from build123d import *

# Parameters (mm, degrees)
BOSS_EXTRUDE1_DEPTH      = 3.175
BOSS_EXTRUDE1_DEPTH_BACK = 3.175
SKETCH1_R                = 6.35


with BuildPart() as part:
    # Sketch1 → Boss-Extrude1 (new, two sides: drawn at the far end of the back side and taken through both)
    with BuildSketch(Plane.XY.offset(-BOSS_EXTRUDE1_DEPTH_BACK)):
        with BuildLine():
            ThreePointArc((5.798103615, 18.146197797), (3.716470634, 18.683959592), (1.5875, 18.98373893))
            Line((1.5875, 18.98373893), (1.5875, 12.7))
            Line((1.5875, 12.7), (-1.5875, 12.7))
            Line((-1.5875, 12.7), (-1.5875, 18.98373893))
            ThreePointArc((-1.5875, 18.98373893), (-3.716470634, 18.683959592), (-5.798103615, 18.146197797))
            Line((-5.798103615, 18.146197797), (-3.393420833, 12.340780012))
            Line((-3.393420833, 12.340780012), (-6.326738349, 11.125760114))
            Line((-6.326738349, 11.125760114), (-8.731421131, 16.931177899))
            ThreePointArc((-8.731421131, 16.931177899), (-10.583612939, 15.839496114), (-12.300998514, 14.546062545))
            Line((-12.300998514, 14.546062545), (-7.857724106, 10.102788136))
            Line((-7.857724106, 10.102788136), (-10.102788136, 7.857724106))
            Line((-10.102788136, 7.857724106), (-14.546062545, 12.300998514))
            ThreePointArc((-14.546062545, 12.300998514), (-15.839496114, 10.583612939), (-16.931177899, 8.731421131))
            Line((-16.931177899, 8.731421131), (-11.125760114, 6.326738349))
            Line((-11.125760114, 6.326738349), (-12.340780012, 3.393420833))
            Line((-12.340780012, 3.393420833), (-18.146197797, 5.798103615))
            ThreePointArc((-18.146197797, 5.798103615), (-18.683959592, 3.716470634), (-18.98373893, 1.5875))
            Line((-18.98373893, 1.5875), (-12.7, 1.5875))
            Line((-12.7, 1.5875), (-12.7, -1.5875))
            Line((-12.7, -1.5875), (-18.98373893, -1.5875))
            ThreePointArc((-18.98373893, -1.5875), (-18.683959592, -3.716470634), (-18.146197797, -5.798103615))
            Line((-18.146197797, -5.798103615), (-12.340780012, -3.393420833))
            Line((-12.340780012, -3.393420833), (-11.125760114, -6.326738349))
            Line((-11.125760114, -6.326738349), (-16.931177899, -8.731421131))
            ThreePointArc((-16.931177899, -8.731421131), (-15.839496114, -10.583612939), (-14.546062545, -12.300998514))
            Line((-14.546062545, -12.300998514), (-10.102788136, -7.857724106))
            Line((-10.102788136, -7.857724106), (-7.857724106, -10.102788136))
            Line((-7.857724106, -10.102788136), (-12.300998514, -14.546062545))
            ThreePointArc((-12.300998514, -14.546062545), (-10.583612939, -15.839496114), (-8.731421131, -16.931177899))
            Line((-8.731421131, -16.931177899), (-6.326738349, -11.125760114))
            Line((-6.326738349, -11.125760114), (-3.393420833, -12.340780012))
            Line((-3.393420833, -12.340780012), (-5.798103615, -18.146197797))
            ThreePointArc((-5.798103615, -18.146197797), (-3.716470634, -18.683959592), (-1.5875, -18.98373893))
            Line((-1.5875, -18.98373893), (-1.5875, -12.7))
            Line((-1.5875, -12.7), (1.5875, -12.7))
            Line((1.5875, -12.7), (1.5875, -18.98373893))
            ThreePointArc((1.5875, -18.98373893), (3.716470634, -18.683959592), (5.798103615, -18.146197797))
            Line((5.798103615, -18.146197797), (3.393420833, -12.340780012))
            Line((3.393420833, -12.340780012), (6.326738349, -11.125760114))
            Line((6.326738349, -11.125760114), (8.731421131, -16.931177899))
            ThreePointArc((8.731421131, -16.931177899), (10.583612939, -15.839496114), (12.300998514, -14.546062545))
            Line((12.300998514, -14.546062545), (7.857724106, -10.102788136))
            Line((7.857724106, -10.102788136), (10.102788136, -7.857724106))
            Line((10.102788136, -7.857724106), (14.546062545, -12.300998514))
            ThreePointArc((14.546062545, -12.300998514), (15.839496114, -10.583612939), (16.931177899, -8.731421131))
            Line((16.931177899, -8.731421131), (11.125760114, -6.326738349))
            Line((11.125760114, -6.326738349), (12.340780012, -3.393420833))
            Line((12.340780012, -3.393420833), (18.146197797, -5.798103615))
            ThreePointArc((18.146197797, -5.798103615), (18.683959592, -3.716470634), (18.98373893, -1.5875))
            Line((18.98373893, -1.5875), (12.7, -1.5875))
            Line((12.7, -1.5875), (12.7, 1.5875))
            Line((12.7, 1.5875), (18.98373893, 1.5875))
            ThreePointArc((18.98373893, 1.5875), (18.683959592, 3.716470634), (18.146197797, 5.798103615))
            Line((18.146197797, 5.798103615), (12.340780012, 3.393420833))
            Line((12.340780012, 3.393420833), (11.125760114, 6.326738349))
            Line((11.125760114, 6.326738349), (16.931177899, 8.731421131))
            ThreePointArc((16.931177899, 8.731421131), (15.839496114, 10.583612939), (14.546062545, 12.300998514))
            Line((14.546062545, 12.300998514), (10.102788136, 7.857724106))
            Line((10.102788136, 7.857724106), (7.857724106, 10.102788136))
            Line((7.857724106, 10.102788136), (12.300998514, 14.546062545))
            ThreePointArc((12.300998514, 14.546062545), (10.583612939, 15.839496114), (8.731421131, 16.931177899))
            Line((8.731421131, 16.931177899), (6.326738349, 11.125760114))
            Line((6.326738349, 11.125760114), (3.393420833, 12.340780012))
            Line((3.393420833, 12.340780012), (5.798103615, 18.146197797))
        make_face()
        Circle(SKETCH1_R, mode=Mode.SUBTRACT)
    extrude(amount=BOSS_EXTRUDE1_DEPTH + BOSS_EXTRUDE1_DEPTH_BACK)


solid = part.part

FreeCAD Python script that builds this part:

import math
import FreeCAD as App
import Part
import Sketcher
Q = App.Units.Quantity

doc = App.newDocument("Part")
body = doc.addObject("PartDesign::Body", "Body")

sketch1 = doc.addObject("Sketcher::SketchObject", "Sketch")
body.addObject(sketch1)
sketch1.AttachmentSupport = (doc.XY_Plane, [""])
sketch1.MapMode = "FlatFace"
sketch1.addGeometry(Part.ArcOfCircle(Part.Circle(App.Vector(0, 0, 0), App.Vector(0, 0, 1), 19.1), math.radians(72.28), math.radians(85.22)), False)
sketch1.addGeometry(Part.LineSegment(App.Vector(1.6, 19, 0), App.Vector(1.6, 12.7, 0)), False)
sketch1.addGeometry(Part.LineSegment(App.Vector(1.6, 12.7, 0), App.Vector(-1.6, 12.7, 0)), False)
sketch1.addGeometry(Part.LineSegment(App.Vector(-1.6, 12.7, 0), App.Vector(-1.6, 19, 0)), False)
sketch1.addGeometry(Part.ArcOfCircle(Part.Circle(App.Vector(0, 0, 0), App.Vector(0, 0, 1), 19.1), math.radians(94.78), math.radians(107.72)), False)
sketch1.addGeometry(Part.LineSegment(App.Vector(-5.8, 18.1, 0), App.Vector(-3.4, 12.3, 0)), False)
sketch1.addGeometry(Part.LineSegment(App.Vector(-3.4, 12.3, 0), App.Vector(-6.3, 11.1, 0)), False)
sketch1.addGeometry(Part.LineSegment(App.Vector(-6.3, 11.1, 0), App.Vector(-8.7, 16.9, 0)), False)
sketch1.addGeometry(Part.ArcOfCircle(Part.Circle(App.Vector(0, 0, 0), App.Vector(0, 0, 1), 19.1), math.radians(117.28), math.radians(130.22)), False)
sketch1.addGeometry(Part.LineSegment(App.Vector(-12.3, 14.5, 0), App.Vector(-7.9, 10.1, 0)), False)
sketch1.addGeometry(Part.LineSegment(App.Vector(-7.9, 10.1, 0), App.Vector(-10.1, 7.9, 0)), False)
sketch1.addGeometry(Part.LineSegment(App.Vector(-10.1, 7.9, 0), App.Vector(-14.5, 12.3, 0)), False)
sketch1.addGeometry(Part.ArcOfCircle(Part.Circle(App.Vector(0, 0, 0), App.Vector(0, 0, 1), 19.1), math.radians(139.78), math.radians(152.72)), False)
sketch1.addGeometry(Part.LineSegment(App.Vector(-16.9, 8.7, 0), App.Vector(-11.1, 6.3, 0)), False)
sketch1.addGeometry(Part.LineSegment(App.Vector(-11.1, 6.3, 0), App.Vector(-12.3, 3.4, 0)), False)
sketch1.addGeometry(Part.LineSegment(App.Vector(-12.3, 3.4, 0), App.Vector(-18.1, 5.8, 0)), False)
sketch1.addGeometry(Part.ArcOfCircle(Part.Circle(App.Vector(0, 0, 0), App.Vector(0, 0, 1), 19.1), math.radians(162.28), math.radians(175.22)), False)
sketch1.addGeometry(Part.LineSegment(App.Vector(-19, 1.6, 0), App.Vector(-12.7, 1.6, 0)), False)
sketch1.addGeometry(Part.LineSegment(App.Vector(-12.7, 1.6, 0), App.Vector(-12.7, -1.6, 0)), False)
sketch1.addGeometry(Part.LineSegment(App.Vector(-12.7, -1.6, 0), App.Vector(-19, -1.6, 0)), False)
sketch1.addGeometry(Part.ArcOfCircle(Part.Circle(App.Vector(0, 0, 0), App.Vector(0, 0, 1), 19.1), math.radians(-175.22), math.radians(-162.28)), False)
sketch1.addGeometry(Part.LineSegment(App.Vector(-18.1, -5.8, 0), App.Vector(-12.3, -3.4, 0)), False)
sketch1.addGeometry(Part.LineSegment(App.Vector(-12.3, -3.4, 0), App.Vector(-11.1, -6.3, 0)), False)
sketch1.addGeometry(Part.LineSegment(App.Vector(-11.1, -6.3, 0), App.Vector(-16.9, -8.7, 0)), False)
sketch1.addGeometry(Part.ArcOfCircle(Part.Circle(App.Vector(0, 0, 0), App.Vector(0, 0, 1), 19.1), math.radians(-152.72), math.radians(-139.78)), False)
sketch1.addGeometry(Part.LineSegment(App.Vector(-14.5, -12.3, 0), App.Vector(-10.1, -7.9, 0)), False)
sketch1.addGeometry(Part.LineSegment(App.Vector(-10.1, -7.9, 0), App.Vector(-7.9, -10.1, 0)), False)
sketch1.addGeometry(Part.LineSegment(App.Vector(-7.9, -10.1, 0), App.Vector(-12.3, -14.5, 0)), False)
sketch1.addGeometry(Part.ArcOfCircle(Part.Circle(App.Vector(0, 0, 0), App.Vector(0, 0, 1), 19.1), math.radians(-130.22), math.radians(-117.28)), False)
sketch1.addGeometry(Part.LineSegment(App.Vector(-8.7, -16.9, 0), App.Vector(-6.3, -11.1, 0)), False)
sketch1.addGeometry(Part.LineSegment(App.Vector(-6.3, -11.1, 0), App.Vector(-3.4, -12.3, 0)), False)
sketch1.addGeometry(Part.LineSegment(App.Vector(-3.4, -12.3, 0), App.Vector(-5.8, -18.1, 0)), False)
sketch1.addGeometry(Part.ArcOfCircle(Part.Circle(App.Vector(0, 0, 0), App.Vector(0, 0, 1), 19.1), math.radians(-107.72), math.radians(-94.78)), False)
sketch1.addGeometry(Part.LineSegment(App.Vector(-1.6, -19, 0), App.Vector(-1.6, -12.7, 0)), False)
sketch1.addGeometry(Part.LineSegment(App.Vector(-1.6, -12.7, 0), App.Vector(1.6, -12.7, 0)), False)
sketch1.addGeometry(Part.LineSegment(App.Vector(1.6, -12.7, 0), App.Vector(1.6, -19, 0)), False)
sketch1.addGeometry(Part.ArcOfCircle(Part.Circle(App.Vector(0, 0, 0), App.Vector(0, 0, 1), 19.1), math.radians(-85.22), math.radians(-72.28)), False)
sketch1.addGeometry(Part.LineSegment(App.Vector(5.8, -18.1, 0), App.Vector(3.4, -12.3, 0)), False)
sketch1.addGeometry(Part.LineSegment(App.Vector(3.4, -12.3, 0), App.Vector(6.3, -11.1, 0)), False)
sketch1.addGeometry(Part.LineSegment(App.Vector(6.3, -11.1, 0), App.Vector(8.7, -16.9, 0)), False)
sketch1.addGeometry(Part.ArcOfCircle(Part.Circle(App.Vector(0, 0, 0), App.Vector(0, 0, 1), 19.1), math.radians(-62.72), math.radians(-49.78)), False)
sketch1.addGeometry(Part.LineSegment(App.Vector(12.3, -14.5, 0), App.Vector(7.9, -10.1, 0)), False)
sketch1.addGeometry(Part.LineSegment(App.Vector(7.9, -10.1, 0), App.Vector(10.1, -7.9, 0)), False)
sketch1.addGeometry(Part.LineSegment(App.Vector(10.1, -7.9, 0), App.Vector(14.5, -12.3, 0)), False)
sketch1.addGeometry(Part.ArcOfCircle(Part.Circle(App.Vector(0, 0, 0), App.Vector(0, 0, 1), 19.1), math.radians(-40.22), math.radians(-27.28)), False)
sketch1.addGeometry(Part.LineSegment(App.Vector(16.9, -8.7, 0), App.Vector(11.1, -6.3, 0)), False)
sketch1.addGeometry(Part.LineSegment(App.Vector(11.1, -6.3, 0), App.Vector(12.3, -3.4, 0)), False)
sketch1.addGeometry(Part.LineSegment(App.Vector(12.3, -3.4, 0), App.Vector(18.1, -5.8, 0)), False)
sketch1.addGeometry(Part.ArcOfCircle(Part.Circle(App.Vector(0, 0, 0), App.Vector(0, 0, 1), 19.1), math.radians(-17.72), math.radians(-4.78)), False)
sketch1.addGeometry(Part.LineSegment(App.Vector(19, -1.6, 0), App.Vector(12.7, -1.6, 0)), False)
sketch1.addGeometry(Part.LineSegment(App.Vector(12.7, -1.6, 0), App.Vector(12.7, 1.6, 0)), False)
sketch1.addGeometry(Part.LineSegment(App.Vector(12.7, 1.6, 0), App.Vector(19, 1.6, 0)), False)
sketch1.addGeometry(Part.ArcOfCircle(Part.Circle(App.Vector(0, 0, 0), App.Vector(0, 0, 1), 19.1), math.radians(4.78), math.radians(17.72)), False)
sketch1.addGeometry(Part.LineSegment(App.Vector(18.1, 5.8, 0), App.Vector(12.3, 3.4, 0)), False)
sketch1.addGeometry(Part.LineSegment(App.Vector(12.3, 3.4, 0), App.Vector(11.1, 6.3, 0)), False)
sketch1.addGeometry(Part.LineSegment(App.Vector(11.1, 6.3, 0), App.Vector(16.9, 8.7, 0)), False)
sketch1.addGeometry(Part.ArcOfCircle(Part.Circle(App.Vector(0, 0, 0), App.Vector(0, 0, 1), 19.1), math.radians(27.28), math.radians(40.22)), False)
sketch1.addGeometry(Part.LineSegment(App.Vector(14.5, 12.3, 0), App.Vector(10.1, 7.9, 0)), False)
sketch1.addGeometry(Part.LineSegment(App.Vector(10.1, 7.9, 0), App.Vector(7.9, 10.1, 0)), False)
sketch1.addGeometry(Part.LineSegment(App.Vector(7.9, 10.1, 0), App.Vector(12.3, 14.5, 0)), False)
sketch1.addGeometry(Part.ArcOfCircle(Part.Circle(App.Vector(0, 0, 0), App.Vector(0, 0, 1), 19.1), math.radians(49.78), math.radians(62.72)), False)
sketch1.addGeometry(Part.LineSegment(App.Vector(8.7, 16.9, 0), App.Vector(6.3, 11.1, 0)), False)
sketch1.addGeometry(Part.LineSegment(App.Vector(6.3, 11.1, 0), App.Vector(3.4, 12.3, 0)), False)
sketch1.addGeometry(Part.LineSegment(App.Vector(3.4, 12.3, 0), App.Vector(5.8, 18.1, 0)), False)
sketch1.addGeometry(Part.Circle(App.Vector(0, 0, 0), App.Vector(0, 0, 1), 6.3), False)
sketch1.addConstraint(Sketcher.Constraint("Coincident", 0, 2, 1, 1))
sketch1.addConstraint(Sketcher.Constraint("Coincident", 1, 2, 2, 1))
sketch1.addConstraint(Sketcher.Constraint("Coincident", 2, 2, 3, 1))
sketch1.addConstraint(Sketcher.Constraint("Coincident", 3, 2, 4, 1))
sketch1.addConstraint(Sketcher.Constraint("Coincident", 4, 2, 5, 1))
sketch1.addConstraint(Sketcher.Constraint("Coincident", 5, 2, 6, 1))
sketch1.addConstraint(Sketcher.Constraint("Coincident", 6, 2, 7, 1))
sketch1.addConstraint(Sketcher.Constraint("Coincident", 7, 2, 8, 1))
sketch1.addConstraint(Sketcher.Constraint("Coincident", 8, 2, 9, 1))
sketch1.addConstraint(Sketcher.Constraint("Coincident", 9, 2, 10, 1))
sketch1.addConstraint(Sketcher.Constraint("Coincident", 10, 2, 11, 1))
sketch1.addConstraint(Sketcher.Constraint("Coincident", 11, 2, 12, 1))
sketch1.addConstraint(Sketcher.Constraint("Coincident", 12, 2, 13, 1))
sketch1.addConstraint(Sketcher.Constraint("Coincident", 13, 2, 14, 1))
sketch1.addConstraint(Sketcher.Constraint("Coincident", 14, 2, 15, 1))
sketch1.addConstraint(Sketcher.Constraint("Coincident", 15, 2, 16, 1))
sketch1.addConstraint(Sketcher.Constraint("Coincident", 16, 2, 17, 1))
sketch1.addConstraint(Sketcher.Constraint("Coincident", 17, 2, 18, 1))
sketch1.addConstraint(Sketcher.Constraint("Coincident", 18, 2, 19, 1))
sketch1.addConstraint(Sketcher.Constraint("Coincident", 19, 2, 20, 1))
sketch1.addConstraint(Sketcher.Constraint("Coincident", 20, 2, 21, 1))
sketch1.addConstraint(Sketcher.Constraint("Coincident", 21, 2, 22, 1))
sketch1.addConstraint(Sketcher.Constraint("Coincident", 22, 2, 23, 1))
sketch1.addConstraint(Sketcher.Constraint("Coincident", 23, 2, 24, 1))
sketch1.addConstraint(Sketcher.Constraint("Coincident", 24, 2, 25, 1))
sketch1.addConstraint(Sketcher.Constraint("Coincident", 25, 2, 26, 1))
sketch1.addConstraint(Sketcher.Constraint("Coincident", 26, 2, 27, 1))
sketch1.addConstraint(Sketcher.Constraint("Coincident", 27, 2, 28, 1))
sketch1.addConstraint(Sketcher.Constraint("Coincident", 28, 2, 29, 1))
sketch1.addConstraint(Sketcher.Constraint("Coincident", 29, 2, 30, 1))
sketch1.addConstraint(Sketcher.Constraint("Coincident", 30, 2, 31, 1))
sketch1.addConstraint(Sketcher.Constraint("Coincident", 31, 2, 32, 1))
sketch1.addConstraint(Sketcher.Constraint("Coincident", 32, 2, 33, 1))
sketch1.addConstraint(Sketcher.Constraint("Coincident", 33, 2, 34, 1))
sketch1.addConstraint(Sketcher.Constraint("Coincident", 34, 2, 35, 1))
sketch1.addConstraint(Sketcher.Constraint("Coincident", 35, 2, 36, 1))
sketch1.addConstraint(Sketcher.Constraint("Coincident", 36, 2, 37, 1))
sketch1.addConstraint(Sketcher.Constraint("Coincident", 37, 2, 38, 1))
sketch1.addConstraint(Sketcher.Constraint("Coincident", 38, 2, 39, 1))
sketch1.addConstraint(Sketcher.Constraint("Coincident", 39, 2, 40, 1))
sketch1.addConstraint(Sketcher.Constraint("Coincident", 40, 2, 41, 1))
sketch1.addConstraint(Sketcher.Constraint("Coincident", 41, 2, 42, 1))
sketch1.addConstraint(Sketcher.Constraint("Coincident", 42, 2, 43, 1))
sketch1.addConstraint(Sketcher.Constraint("Coincident", 43, 2, 44, 1))
sketch1.addConstraint(Sketcher.Constraint("Coincident", 44, 2, 45, 1))
sketch1.addConstraint(Sketcher.Constraint("Coincident", 45, 2, 46, 1))
sketch1.addConstraint(Sketcher.Constraint("Coincident", 46, 2, 47, 1))
sketch1.addConstraint(Sketcher.Constraint("Coincident", 47, 2, 48, 1))
sketch1.addConstraint(Sketcher.Constraint("Coincident", 48, 2, 49, 1))
sketch1.addConstraint(Sketcher.Constraint("Coincident", 49, 2, 50, 1))
sketch1.addConstraint(Sketcher.Constraint("Coincident", 50, 2, 51, 1))
sketch1.addConstraint(Sketcher.Constraint("Coincident", 51, 2, 52, 1))
sketch1.addConstraint(Sketcher.Constraint("Coincident", 52, 2, 53, 1))
sketch1.addConstraint(Sketcher.Constraint("Coincident", 53, 2, 54, 1))
sketch1.addConstraint(Sketcher.Constraint("Coincident", 54, 2, 55, 1))
sketch1.addConstraint(Sketcher.Constraint("Coincident", 55, 2, 56, 1))
sketch1.addConstraint(Sketcher.Constraint("Coincident", 56, 2, 57, 1))
sketch1.addConstraint(Sketcher.Constraint("Coincident", 57, 2, 58, 1))
sketch1.addConstraint(Sketcher.Constraint("Coincident", 58, 2, 59, 1))
sketch1.addConstraint(Sketcher.Constraint("Coincident", 59, 2, 60, 1))
sketch1.addConstraint(Sketcher.Constraint("Coincident", 60, 2, 61, 1))
sketch1.addConstraint(Sketcher.Constraint("Coincident", 61, 2, 62, 1))
sketch1.addConstraint(Sketcher.Constraint("Coincident", 62, 2, 63, 1))
sketch1.addConstraint(Sketcher.Constraint("Coincident", 63, 2, 0, 1))
sketch1.addConstraint(Sketcher.Constraint("Vertical", 1))
sketch1.addConstraint(Sketcher.Constraint("Horizontal", 2))
sketch1.addConstraint(Sketcher.Constraint("Vertical", 3))
sketch1.addConstraint(Sketcher.Constraint("Horizontal", 17))
sketch1.addConstraint(Sketcher.Constraint("Vertical", 18))
sketch1.addConstraint(Sketcher.Constraint("Horizontal", 19))
sketch1.addConstraint(Sketcher.Constraint("Vertical", 33))
sketch1.addConstraint(Sketcher.Constraint("Horizontal", 34))
sketch1.addConstraint(Sketcher.Constraint("Vertical", 35))
sketch1.addConstraint(Sketcher.Constraint("Horizontal", 49))
sketch1.addConstraint(Sketcher.Constraint("Vertical", 50))
sketch1.addConstraint(Sketcher.Constraint("Horizontal", 51))
sketch1.addConstraint(Sketcher.Constraint("Coincident", 0, 3, -1, 1))
sketch1.addConstraint(Sketcher.Constraint("Coincident", 4, 3, -1, 1))
sketch1.addConstraint(Sketcher.Constraint("Coincident", 8, 3, -1, 1))
sketch1.addConstraint(Sketcher.Constraint("Coincident", 12, 3, -1, 1))
sketch1.addConstraint(Sketcher.Constraint("Coincident", 16, 3, -1, 1))
sketch1.addConstraint(Sketcher.Constraint("Coincident", 20, 3, -1, 1))
sketch1.addConstraint(Sketcher.Constraint("Coincident", 24, 3, -1, 1))
sketch1.addConstraint(Sketcher.Constraint("Coincident", 28, 3, -1, 1))
sketch1.addConstraint(Sketcher.Constraint("Coincident", 32, 3, -1, 1))
sketch1.addConstraint(Sketcher.Constraint("Coincident", 36, 3, -1, 1))
sketch1.addConstraint(Sketcher.Constraint("Coincident", 40, 3, -1, 1))
sketch1.addConstraint(Sketcher.Constraint("Coincident", 44, 3, -1, 1))
sketch1.addConstraint(Sketcher.Constraint("Coincident", 48, 3, -1, 1))
sketch1.addConstraint(Sketcher.Constraint("Coincident", 52, 3, -1, 1))
sketch1.addConstraint(Sketcher.Constraint("Coincident", 56, 3, -1, 1))
sketch1.addConstraint(Sketcher.Constraint("Coincident", 60, 3, -1, 1))
sketch1.addConstraint(Sketcher.Constraint("Coincident", 64, 3, -1, 1))
sketch1.addConstraint(Sketcher.Constraint("Equal", 0, 4))
sketch1.addConstraint(Sketcher.Constraint("Equal", 4, 8))
sketch1.addConstraint(Sketcher.Constraint("Equal", 8, 12))
sketch1.addConstraint(Sketcher.Constraint("Equal", 12, 16))
sketch1.addConstraint(Sketcher.Constraint("Equal", 16, 20))
sketch1.addConstraint(Sketcher.Constraint("Equal", 20, 24))
sketch1.addConstraint(Sketcher.Constraint("Equal", 24, 28))
sketch1.addConstraint(Sketcher.Constraint("Equal", 28, 32))
sketch1.addConstraint(Sketcher.Constraint("Equal", 32, 36))
sketch1.addConstraint(Sketcher.Constraint("Equal", 36, 40))
sketch1.addConstraint(Sketcher.Constraint("Equal", 40, 44))
sketch1.addConstraint(Sketcher.Constraint("Equal", 44, 48))
sketch1.addConstraint(Sketcher.Constraint("Equal", 48, 52))
sketch1.addConstraint(Sketcher.Constraint("Equal", 52, 56))
sketch1.addConstraint(Sketcher.Constraint("Equal", 56, 60))
sketch1.addConstraint(Sketcher.Constraint("Symmetric", 1, 2, 33, 2, -1, 1))
sketch1.addConstraint(Sketcher.Constraint("Symmetric", 5, 2, 37, 2, -1, 1))
sketch1.addConstraint(Sketcher.Constraint("Symmetric", 6, 2, 38, 2, -1, 1))
sketch1.addConstraint(Sketcher.Constraint("Symmetric", 9, 2, 41, 2, -1, 1))
sketch1.addConstraint(Sketcher.Constraint("Symmetric", 10, 2, 42, 2, -1, 1))
sketch1.addConstraint(Sketcher.Constraint("Symmetric", 13, 2, 45, 2, -1, 1))
sketch1.addConstraint(Sketcher.Constraint("Symmetric", 14, 2, 46, 2, -1, 1))
sketch1.addConstraint(Sketcher.Constraint("Symmetric", 17, 2, 49, 2, -1, 1))
sketch1.addConstraint(Sketcher.Constraint("Symmetric", 21, 2, 53, 2, -1, 1))
sketch1.addConstraint(Sketcher.Constraint("Symmetric", 22, 2, 54, 2, -1, 1))
sketch1.addConstraint(Sketcher.Constraint("Symmetric", 25, 2, 57, 2, -1, 1))
sketch1.addConstraint(Sketcher.Constraint("Symmetric", 26, 2, 58, 2, -1, 1))
sketch1.addConstraint(Sketcher.Constraint("Symmetric", 29, 2, 61, 2, -1, 1))
sketch1.addConstraint(Sketcher.Constraint("Symmetric", 30, 2, 62, 2, -1, 1))
sketch1.addConstraint(Sketcher.Constraint("Symmetric", 30, 2, 37, 2, -2))
sketch1.addConstraint(Sketcher.Constraint("Symmetric", 29, 2, 38, 2, -2))
sketch1.addConstraint(Sketcher.Constraint("Symmetric", 26, 2, 41, 2, -2))
sketch1.addConstraint(Sketcher.Constraint("Symmetric", 25, 2, 42, 2, -2))
sketch1.addConstraint(Sketcher.Constraint("Symmetric", 22, 2, 45, 2, -2))
sketch1.addConstraint(Sketcher.Constraint("Symmetric", 21, 2, 46, 2, -2))
sketch1.addConstraint(Sketcher.Constraint("Perpendicular", 5, 6))
sketch1.addConstraint(Sketcher.Constraint("Perpendicular", 6, 7))
sketch1.addConstraint(Sketcher.Constraint("Perpendicular", 9, 10))
sketch1.addConstraint(Sketcher.Constraint("Perpendicular", 10, 11))
sketch1.addConstraint(Sketcher.Constraint("Perpendicular", 13, 14))
sketch1.addConstraint(Sketcher.Constraint("Perpendicular", 14, 15))
sketch1.addConstraint(Sketcher.Constraint("Perpendicular", 7, 21))
sketch1.addConstraint(Sketcher.Constraint("Perpendicular", 21, 22))
sketch1.addConstraint(Sketcher.Constraint("Perpendicular", 22, 23))
sketch1.addConstraint(Sketcher.Constraint("Perpendicular", 11, 25))
sketch1.addConstraint(Sketcher.Constraint("Perpendicular", 25, 26))
sketch1.addConstraint(Sketcher.Constraint("Perpendicular", 26, 27))
sketch1.addConstraint(Sketcher.Constraint("Perpendicular", 15, 29))
sketch1.addConstraint(Sketcher.Constraint("Perpendicular", 30, 31))
sketch1.addConstraint(Sketcher.Constraint("Perpendicular", 23, 37))
sketch1.addConstraint(Sketcher.Constraint("Perpendicular", 38, 39))
sketch1.addConstraint(Sketcher.Constraint("Perpendicular", 27, 41))
sketch1.addConstraint(Sketcher.Constraint("Perpendicular", 42, 43))
sketch1.addConstraint(Sketcher.Constraint("Perpendicular", 31, 45))
sketch1.addConstraint(Sketcher.Constraint("Perpendicular", 46, 47))
sketch1.addConstraint(Sketcher.Constraint("Perpendicular", 39, 53))
sketch1.addConstraint(Sketcher.Constraint("Perpendicular", 54, 55))
sketch1.addConstraint(Sketcher.Constraint("Perpendicular", 43, 57))
sketch1.addConstraint(Sketcher.Constraint("Perpendicular", 58, 59))
sketch1.addConstraint(Sketcher.Constraint("Perpendicular", 47, 61))
sketch1.addConstraint(Sketcher.Constraint("Perpendicular", 62, 63))
sketch1.addConstraint(Sketcher.Constraint("Horizontal", 0, 2, 3, 2))
sketch1.addConstraint(Sketcher.Constraint("Horizontal", 32, 2, 35, 2))
sketch1.addConstraint(Sketcher.Constraint("Horizontal", 19, 2, 48, 2))
sketch1.addConstraint(Sketcher.Constraint("Horizontal", 17, 2, 50, 2))
sketch1.addConstraint(Sketcher.Constraint("Equal", 51, 1))
sketch1.addConstraint(Sketcher.Constraint("Equal", 34, 18))
sketch1.addConstraint(Sketcher.Constraint("Equal", 5, 7))
sketch1.addConstraint(Sketcher.Constraint("Equal", 7, 9))
sketch1.addConstraint(Sketcher.Constraint("Equal", 6, 10))
sketch1.addConstraint(Sketcher.Constraint("Equal", 9, 11))
sketch1.addConstraint(Sketcher.Constraint("Equal", 11, 13))
sketch1.addConstraint(Sketcher.Constraint("Equal", 10, 14))
sketch1.addConstraint(Sketcher.Constraint("Equal", 13, 15))
sketch1.addConstraint(Sketcher.Constraint("Diameter", 64, Q("0.5 in")))
sketch1.addConstraint(Sketcher.Constraint("Radius", 0, Q("0.75 in")))
sketch1.addConstraint(Sketcher.Constraint("DistanceY", -1, 1, 1, 2, Q("0.5 in")))
sketch1.addConstraint(Sketcher.Constraint("Angle", 5, Q("-67.5 deg")))
sketch1.addConstraint(Sketcher.Constraint("DistanceX", 2, 2, 2, 1, Q("0.125 in")))
sketch1.addConstraint(Sketcher.Constraint("Distance", 6, Q("0.125 in")))
sketch1.addConstraint(Sketcher.Constraint("Distance", 5, Q("6.283739 mm")))
pad1 = doc.addObject("PartDesign::Pad", "Pad")
body.addObject(pad1)
pad1.Profile = sketch1
pad1.Type = "TwoLengths"
pad1.Length = Q("0.125 in")
pad1.Length2 = Q("0.125 in")

doc.recompute()
